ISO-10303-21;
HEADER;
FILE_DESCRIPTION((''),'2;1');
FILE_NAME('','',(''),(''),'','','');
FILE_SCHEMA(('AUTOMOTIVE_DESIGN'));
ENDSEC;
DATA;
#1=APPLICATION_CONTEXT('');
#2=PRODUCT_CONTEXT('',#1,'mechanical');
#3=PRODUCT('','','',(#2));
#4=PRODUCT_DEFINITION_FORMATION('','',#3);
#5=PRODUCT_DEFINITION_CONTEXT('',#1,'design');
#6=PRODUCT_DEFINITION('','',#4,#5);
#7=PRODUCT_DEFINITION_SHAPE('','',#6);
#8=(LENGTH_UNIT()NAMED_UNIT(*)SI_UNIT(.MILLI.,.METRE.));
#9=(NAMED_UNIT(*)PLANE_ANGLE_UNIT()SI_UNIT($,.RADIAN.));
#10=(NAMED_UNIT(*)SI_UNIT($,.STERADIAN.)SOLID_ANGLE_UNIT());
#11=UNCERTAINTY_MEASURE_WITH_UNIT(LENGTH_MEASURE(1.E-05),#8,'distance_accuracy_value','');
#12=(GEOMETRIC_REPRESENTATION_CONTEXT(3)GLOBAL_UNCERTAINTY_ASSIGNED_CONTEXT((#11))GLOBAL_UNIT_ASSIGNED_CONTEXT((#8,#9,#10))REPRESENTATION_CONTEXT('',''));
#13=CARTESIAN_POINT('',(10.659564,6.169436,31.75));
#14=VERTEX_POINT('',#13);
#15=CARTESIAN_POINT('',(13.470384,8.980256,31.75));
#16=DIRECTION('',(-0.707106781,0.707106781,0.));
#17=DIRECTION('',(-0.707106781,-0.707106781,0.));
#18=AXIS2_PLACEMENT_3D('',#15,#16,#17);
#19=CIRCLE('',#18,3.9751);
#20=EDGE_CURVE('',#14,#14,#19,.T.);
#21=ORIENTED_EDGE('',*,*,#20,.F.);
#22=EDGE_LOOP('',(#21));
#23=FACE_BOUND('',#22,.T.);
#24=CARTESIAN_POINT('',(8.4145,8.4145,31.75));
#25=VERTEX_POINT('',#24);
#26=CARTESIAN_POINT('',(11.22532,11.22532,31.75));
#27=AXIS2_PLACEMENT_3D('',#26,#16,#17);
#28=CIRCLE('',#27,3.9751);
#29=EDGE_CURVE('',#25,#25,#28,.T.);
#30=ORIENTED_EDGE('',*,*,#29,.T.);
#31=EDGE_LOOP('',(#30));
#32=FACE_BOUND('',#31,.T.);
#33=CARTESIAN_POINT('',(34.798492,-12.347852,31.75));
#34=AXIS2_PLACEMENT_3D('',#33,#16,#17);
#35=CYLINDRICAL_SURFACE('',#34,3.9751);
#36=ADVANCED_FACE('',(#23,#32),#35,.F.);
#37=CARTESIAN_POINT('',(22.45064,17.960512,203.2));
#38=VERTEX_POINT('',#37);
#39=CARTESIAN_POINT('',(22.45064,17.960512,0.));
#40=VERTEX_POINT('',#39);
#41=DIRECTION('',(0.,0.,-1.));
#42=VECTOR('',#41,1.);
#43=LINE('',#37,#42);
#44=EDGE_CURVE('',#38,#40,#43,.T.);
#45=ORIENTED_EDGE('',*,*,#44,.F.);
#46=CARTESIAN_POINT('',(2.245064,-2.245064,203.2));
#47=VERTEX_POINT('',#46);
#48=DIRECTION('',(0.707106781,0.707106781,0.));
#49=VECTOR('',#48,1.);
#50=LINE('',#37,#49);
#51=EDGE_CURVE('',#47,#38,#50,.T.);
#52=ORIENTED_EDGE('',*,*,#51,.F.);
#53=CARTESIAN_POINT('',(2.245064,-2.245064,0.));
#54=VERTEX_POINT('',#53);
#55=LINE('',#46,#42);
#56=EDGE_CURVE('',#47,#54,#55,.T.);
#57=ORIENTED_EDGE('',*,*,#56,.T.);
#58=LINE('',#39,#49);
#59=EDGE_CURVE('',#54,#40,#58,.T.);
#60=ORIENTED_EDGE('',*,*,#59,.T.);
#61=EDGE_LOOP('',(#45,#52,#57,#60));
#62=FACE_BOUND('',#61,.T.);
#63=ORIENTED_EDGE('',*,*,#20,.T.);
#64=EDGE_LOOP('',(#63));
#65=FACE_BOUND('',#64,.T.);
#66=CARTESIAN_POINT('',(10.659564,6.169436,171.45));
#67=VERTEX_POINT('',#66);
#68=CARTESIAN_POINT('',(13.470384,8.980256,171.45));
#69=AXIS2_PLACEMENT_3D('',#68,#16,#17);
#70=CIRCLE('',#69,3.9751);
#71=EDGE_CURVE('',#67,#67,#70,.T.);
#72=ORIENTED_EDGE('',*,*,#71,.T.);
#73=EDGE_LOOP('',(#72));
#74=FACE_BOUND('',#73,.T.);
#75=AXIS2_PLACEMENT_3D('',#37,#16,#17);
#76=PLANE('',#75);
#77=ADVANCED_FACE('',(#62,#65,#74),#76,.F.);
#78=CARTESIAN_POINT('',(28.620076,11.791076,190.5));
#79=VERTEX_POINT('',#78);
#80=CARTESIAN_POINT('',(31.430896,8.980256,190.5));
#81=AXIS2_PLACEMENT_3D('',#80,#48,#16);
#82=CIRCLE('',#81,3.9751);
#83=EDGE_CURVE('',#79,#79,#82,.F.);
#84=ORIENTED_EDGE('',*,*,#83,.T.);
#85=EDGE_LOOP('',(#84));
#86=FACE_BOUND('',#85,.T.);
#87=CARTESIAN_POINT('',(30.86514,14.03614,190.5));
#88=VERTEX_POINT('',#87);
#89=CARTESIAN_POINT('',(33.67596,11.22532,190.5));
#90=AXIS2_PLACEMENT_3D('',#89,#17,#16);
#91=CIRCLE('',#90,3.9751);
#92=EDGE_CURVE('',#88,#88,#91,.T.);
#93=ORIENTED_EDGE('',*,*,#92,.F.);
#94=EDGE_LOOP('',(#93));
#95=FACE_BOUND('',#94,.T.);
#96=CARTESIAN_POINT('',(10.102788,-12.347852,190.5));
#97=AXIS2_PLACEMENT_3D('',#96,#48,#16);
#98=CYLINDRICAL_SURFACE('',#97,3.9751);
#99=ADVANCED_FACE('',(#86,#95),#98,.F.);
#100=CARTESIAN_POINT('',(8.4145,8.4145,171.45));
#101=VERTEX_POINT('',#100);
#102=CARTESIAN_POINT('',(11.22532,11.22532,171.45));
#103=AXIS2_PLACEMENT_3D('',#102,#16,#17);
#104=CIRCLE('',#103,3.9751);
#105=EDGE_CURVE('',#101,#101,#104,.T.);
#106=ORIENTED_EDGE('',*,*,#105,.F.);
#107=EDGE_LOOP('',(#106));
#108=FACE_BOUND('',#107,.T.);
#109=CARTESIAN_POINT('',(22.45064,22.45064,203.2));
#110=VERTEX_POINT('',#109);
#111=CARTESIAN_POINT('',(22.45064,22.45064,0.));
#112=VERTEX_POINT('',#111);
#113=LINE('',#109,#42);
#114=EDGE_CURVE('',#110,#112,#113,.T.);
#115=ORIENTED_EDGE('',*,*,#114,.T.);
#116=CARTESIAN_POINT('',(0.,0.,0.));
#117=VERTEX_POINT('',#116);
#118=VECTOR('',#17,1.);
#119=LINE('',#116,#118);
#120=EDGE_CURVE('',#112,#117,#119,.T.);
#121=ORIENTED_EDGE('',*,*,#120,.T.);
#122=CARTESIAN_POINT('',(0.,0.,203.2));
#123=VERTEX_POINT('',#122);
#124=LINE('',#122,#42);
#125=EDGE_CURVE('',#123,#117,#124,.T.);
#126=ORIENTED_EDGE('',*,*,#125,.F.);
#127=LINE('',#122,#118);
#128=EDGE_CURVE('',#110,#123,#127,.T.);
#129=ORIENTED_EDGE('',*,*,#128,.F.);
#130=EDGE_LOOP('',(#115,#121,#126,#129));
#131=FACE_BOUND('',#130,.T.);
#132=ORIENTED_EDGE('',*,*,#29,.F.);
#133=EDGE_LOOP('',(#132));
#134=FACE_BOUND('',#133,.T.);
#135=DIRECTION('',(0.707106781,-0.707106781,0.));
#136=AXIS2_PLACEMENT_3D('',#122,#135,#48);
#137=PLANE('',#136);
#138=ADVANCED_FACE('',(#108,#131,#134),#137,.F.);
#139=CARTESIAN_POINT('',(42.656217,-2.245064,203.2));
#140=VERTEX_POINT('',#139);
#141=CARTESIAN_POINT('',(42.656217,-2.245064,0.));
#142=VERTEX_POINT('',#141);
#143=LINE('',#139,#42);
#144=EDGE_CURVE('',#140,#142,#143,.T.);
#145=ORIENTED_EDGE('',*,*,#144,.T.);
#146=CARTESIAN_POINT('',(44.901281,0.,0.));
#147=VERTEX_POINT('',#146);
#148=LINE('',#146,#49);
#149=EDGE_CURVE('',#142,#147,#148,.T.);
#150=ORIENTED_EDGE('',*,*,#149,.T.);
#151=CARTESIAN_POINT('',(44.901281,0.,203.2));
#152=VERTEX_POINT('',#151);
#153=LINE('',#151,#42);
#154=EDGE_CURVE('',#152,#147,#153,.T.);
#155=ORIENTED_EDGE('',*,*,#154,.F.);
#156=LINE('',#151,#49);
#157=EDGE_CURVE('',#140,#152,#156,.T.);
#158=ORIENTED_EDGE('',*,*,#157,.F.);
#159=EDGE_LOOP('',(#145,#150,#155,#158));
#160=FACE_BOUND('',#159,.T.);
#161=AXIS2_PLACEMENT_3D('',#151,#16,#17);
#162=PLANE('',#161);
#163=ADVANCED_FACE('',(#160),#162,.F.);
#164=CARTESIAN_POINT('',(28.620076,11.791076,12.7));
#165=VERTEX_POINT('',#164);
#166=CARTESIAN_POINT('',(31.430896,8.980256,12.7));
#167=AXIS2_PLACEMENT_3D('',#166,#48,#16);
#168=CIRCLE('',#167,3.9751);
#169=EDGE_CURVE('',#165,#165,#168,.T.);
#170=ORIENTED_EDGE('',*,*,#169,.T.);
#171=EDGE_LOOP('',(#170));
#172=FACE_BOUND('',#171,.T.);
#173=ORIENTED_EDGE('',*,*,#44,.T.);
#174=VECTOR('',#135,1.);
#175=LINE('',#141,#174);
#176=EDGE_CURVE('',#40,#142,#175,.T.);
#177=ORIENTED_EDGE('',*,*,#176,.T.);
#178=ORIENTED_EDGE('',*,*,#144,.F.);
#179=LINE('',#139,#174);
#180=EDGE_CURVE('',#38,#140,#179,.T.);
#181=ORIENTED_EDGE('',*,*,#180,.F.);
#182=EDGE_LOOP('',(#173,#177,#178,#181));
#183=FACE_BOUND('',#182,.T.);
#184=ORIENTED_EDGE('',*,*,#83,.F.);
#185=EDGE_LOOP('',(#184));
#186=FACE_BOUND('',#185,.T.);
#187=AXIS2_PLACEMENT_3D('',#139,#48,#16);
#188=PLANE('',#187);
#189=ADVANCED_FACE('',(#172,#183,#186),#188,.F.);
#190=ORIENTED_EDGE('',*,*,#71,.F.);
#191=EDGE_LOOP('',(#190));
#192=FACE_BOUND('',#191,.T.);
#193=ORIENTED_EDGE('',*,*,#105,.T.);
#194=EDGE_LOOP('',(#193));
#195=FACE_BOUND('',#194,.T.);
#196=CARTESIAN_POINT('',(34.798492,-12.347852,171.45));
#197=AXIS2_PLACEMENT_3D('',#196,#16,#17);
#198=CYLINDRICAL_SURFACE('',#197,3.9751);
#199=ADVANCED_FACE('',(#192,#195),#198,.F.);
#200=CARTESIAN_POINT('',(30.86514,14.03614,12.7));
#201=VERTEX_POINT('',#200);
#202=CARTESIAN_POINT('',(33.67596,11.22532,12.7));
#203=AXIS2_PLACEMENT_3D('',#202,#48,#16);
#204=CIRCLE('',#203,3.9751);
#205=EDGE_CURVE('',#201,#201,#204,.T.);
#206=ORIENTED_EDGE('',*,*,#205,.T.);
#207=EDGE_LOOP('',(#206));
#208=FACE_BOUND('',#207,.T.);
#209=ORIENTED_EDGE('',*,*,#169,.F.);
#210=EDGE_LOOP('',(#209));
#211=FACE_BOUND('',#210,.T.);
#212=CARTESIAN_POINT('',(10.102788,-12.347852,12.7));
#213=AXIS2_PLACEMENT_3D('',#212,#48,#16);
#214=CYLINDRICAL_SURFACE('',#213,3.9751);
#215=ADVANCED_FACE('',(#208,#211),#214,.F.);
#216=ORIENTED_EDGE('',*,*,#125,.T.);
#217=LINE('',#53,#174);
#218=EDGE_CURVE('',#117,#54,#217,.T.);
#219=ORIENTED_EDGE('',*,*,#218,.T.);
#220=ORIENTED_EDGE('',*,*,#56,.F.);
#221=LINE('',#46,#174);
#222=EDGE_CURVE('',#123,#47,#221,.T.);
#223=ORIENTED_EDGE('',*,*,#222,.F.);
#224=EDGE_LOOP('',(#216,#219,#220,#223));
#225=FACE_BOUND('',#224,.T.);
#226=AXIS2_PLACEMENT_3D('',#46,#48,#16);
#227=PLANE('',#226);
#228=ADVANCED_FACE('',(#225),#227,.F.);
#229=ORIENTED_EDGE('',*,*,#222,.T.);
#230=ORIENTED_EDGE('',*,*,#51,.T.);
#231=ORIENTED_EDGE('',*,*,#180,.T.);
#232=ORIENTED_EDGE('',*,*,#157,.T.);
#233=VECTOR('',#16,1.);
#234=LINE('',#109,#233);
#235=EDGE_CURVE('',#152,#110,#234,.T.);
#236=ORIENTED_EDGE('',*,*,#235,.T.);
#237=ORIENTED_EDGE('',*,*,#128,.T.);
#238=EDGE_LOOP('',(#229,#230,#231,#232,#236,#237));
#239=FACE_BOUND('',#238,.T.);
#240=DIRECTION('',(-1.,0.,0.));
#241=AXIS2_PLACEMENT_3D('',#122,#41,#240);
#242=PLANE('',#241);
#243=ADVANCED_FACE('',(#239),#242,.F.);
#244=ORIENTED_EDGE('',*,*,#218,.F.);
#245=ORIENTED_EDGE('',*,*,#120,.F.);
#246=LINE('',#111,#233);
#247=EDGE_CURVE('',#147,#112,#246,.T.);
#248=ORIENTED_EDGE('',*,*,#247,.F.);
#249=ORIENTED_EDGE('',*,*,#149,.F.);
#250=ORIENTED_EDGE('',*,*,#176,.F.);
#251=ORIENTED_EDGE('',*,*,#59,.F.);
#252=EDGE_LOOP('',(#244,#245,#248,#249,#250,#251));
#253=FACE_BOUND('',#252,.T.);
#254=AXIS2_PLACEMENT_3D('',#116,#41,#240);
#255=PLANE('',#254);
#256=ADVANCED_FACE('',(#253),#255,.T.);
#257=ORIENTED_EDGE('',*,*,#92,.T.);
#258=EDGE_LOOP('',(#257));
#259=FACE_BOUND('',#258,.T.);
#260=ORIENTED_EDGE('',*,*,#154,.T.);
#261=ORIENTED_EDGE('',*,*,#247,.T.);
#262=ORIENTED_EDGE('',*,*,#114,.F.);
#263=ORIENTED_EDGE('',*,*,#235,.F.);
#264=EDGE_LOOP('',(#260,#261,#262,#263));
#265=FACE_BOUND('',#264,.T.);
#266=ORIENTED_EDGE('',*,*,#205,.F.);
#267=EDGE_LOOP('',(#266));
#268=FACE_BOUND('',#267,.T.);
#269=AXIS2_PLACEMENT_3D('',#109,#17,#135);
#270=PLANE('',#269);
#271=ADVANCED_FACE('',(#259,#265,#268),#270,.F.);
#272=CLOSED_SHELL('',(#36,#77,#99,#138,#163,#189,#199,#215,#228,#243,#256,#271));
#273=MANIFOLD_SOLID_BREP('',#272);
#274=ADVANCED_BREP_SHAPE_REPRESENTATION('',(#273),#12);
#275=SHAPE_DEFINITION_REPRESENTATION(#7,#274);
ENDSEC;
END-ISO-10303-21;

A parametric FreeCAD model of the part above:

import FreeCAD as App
import Part
import Sketcher

V = App.Vector
Q = App.Units.Quantity

doc = App.newDocument("Part")
params = doc.addObject("Spreadsheet::Sheet", "Params")
for row, (alias, value) in enumerate([
    ("sketch1_length", "1.25 in"),
    ("sketch1_length2", "0.125 in"),
    ("pad1_length", "8 in"),
    ("sketch2_diameter", "0.313 in"),
    ("sketch3_diameter", "0.313 in"),
], start=1):
    params.set(f"A{row}", alias)
    params.set(f"B{row}", "=" + value)
    params.setAlias(f"B{row}", alias)

body = doc.addObject("PartDesign::Body", "Body")

# Sketch on XY plane
sketch1 = doc.addObject("Sketcher::SketchObject", "Sketch")
body.addObject(sketch1)
sketch1.AttachmentSupport = (doc.XY_Plane, [""])
sketch1.MapMode = "FlatFace"
sketch1.addGeometry([
    Part.LineSegment(V(22.5, 22.5, 0), V(0, 0, 0)),  # 0
    Part.LineSegment(V(0, 0, 0), V(2.2, -2.2, 0)),  # 1
    Part.LineSegment(V(2.2, -2.2, 0), V(22.5, 18, 0)),  # 2
    Part.LineSegment(V(22.5, 18, 0), V(42.7, -2.2, 0)),  # 3
    Part.LineSegment(V(42.7, -2.2, 0), V(44.9, 0, 0)),  # 4
    Part.LineSegment(V(44.9, 0, 0), V(22.5, 22.5, 0)),  # 5
], False)
sketch1.addConstraint([
    Sketcher.Constraint("Coincident", 0, 2, 1, 1),
    Sketcher.Constraint("Coincident", 1, 2, 2, 1),
    Sketcher.Constraint("Coincident", 2, 2, 3, 1),
    Sketcher.Constraint("Coincident", 3, 2, 4, 1),
    Sketcher.Constraint("Coincident", 4, 2, 5, 1),
    Sketcher.Constraint("Coincident", 5, 2, 0, 1),
    Sketcher.Constraint("Coincident", 0, 2, -1, 1),
    Sketcher.Constraint("PointOnObject", 4, 2, -1),
    Sketcher.Constraint("Perpendicular", 0, 1),
    Sketcher.Constraint("Perpendicular", 1, 2),
    Sketcher.Constraint("Perpendicular", 2, 3),
    Sketcher.Constraint("Perpendicular", 3, 4),
    Sketcher.Constraint("Perpendicular", 4, 5),
    Sketcher.Constraint("Horizontal", 1, 2, 3, 2),
    Sketcher.Constraint("Vertical", 2, 2, 5, 2),
    Sketcher.Constraint("Distance", 0, Q("1.25 in")),
    Sketcher.Constraint("Distance", 1, Q("0.125 in")),
])
sketch1.setExpression("Constraints[15]", "Params.sketch1_length")
sketch1.setExpression("Constraints[16]", "Params.sketch1_length2")
pad1 = doc.addObject("PartDesign::Pad", "Pad")
body.addObject(pad1)
pad1.Profile = sketch1
pad1.setExpression("Length", "Params.pad1_length")

# Sketch on an angled plane
sketch2 = doc.addObject("Sketcher::SketchObject", "Sketch001")
body.addObject(sketch2)
sketch2.Placement = App.Placement(V(0, 0, 0), App.Rotation(V(0, 0, 1), V(0.707106781, 0.707106781, 0), V(-0.707106781, 0.707106781, 0), "ZXY"))
sketch2.addGeometry([
    Part.Circle(V(31.8, 15.9, 0), V(0, 0, 1), 4),
    Part.Circle(V(171.4, 15.9, 0), V(0, 0, 1), 4),
], False)
sketch2.addConstraint([
    Sketcher.Constraint("Equal", 0, 1),
    Sketcher.Constraint("Horizontal", 0, 3, 1, 3),
    Sketcher.Constraint("Diameter", 0, Q("0.313 in")),
    Sketcher.Constraint("DistanceX", 0, 3, 1, 3, Q("5.5 in")),
    Sketcher.Constraint("DistanceX", -1, 1, 0, 3, Q("1.25 in")),
    Sketcher.Constraint("DistanceY", -1, 1, 0, 3, Q("0.625 in")),
])
sketch2.setExpression("Constraints[2]", "Params.sketch2_diameter")
pocket1 = doc.addObject("PartDesign::Pocket", "Pocket")
body.addObject(pocket1)
pocket1.Profile = sketch2
pocket1.Type = "ThroughAll"

# Sketch on an angled plane
sketch3 = doc.addObject("Sketcher::SketchObject", "Sketch002")
body.addObject(sketch3)
sketch3.Placement = App.Placement(V(22.45064, 22.45064, 0), App.Rotation(V(-0.707106781, 0.707106781, 0), V(0, 0, 0.999999999), V(0.707106781, 0.707106781, 0), "ZXY"))
sketch3.addGeometry(Part.Circle(V(-15.9, 12.7, 0), V(0, 0, 1), 4), False)
sketch3.addConstraint([
    Sketcher.Constraint("Diameter", 0, Q("0.313 in")),
    Sketcher.Constraint("DistanceY", -1, 1, 0, 3, Q("0.5 in")),
    Sketcher.Constraint("DistanceX", 0, 3, -1, 1, Q("0.625 in")),
])
sketch3.setExpression("Constraints[0]", "Params.sketch3_diameter")
pocket2 = doc.addObject("PartDesign::Pocket", "Pocket001")
body.addObject(pocket2)
pocket2.Profile = sketch3
pocket2.Type = "ThroughAll"
doc.recompute()

datumplane = doc.addObject("PartDesign::Plane", "DatumPlane")
body.addObject(datumplane)
datumplane.AttachmentSupport = (doc.XY_Plane, [""])
datumplane.MapMode = "FlatFace"
datumplane.AttachmentOffset = App.Placement(V(0, 0, 4 * 25.4), App.Rotation())
mirrored = doc.addObject("PartDesign::Mirrored", "Mirrored")
body.addObject(mirrored)
mirrored.Originals = [pocket2]
mirrored.MirrorPlane = (datumplane, [""])
body.Tip = mirrored

doc.recompute()
